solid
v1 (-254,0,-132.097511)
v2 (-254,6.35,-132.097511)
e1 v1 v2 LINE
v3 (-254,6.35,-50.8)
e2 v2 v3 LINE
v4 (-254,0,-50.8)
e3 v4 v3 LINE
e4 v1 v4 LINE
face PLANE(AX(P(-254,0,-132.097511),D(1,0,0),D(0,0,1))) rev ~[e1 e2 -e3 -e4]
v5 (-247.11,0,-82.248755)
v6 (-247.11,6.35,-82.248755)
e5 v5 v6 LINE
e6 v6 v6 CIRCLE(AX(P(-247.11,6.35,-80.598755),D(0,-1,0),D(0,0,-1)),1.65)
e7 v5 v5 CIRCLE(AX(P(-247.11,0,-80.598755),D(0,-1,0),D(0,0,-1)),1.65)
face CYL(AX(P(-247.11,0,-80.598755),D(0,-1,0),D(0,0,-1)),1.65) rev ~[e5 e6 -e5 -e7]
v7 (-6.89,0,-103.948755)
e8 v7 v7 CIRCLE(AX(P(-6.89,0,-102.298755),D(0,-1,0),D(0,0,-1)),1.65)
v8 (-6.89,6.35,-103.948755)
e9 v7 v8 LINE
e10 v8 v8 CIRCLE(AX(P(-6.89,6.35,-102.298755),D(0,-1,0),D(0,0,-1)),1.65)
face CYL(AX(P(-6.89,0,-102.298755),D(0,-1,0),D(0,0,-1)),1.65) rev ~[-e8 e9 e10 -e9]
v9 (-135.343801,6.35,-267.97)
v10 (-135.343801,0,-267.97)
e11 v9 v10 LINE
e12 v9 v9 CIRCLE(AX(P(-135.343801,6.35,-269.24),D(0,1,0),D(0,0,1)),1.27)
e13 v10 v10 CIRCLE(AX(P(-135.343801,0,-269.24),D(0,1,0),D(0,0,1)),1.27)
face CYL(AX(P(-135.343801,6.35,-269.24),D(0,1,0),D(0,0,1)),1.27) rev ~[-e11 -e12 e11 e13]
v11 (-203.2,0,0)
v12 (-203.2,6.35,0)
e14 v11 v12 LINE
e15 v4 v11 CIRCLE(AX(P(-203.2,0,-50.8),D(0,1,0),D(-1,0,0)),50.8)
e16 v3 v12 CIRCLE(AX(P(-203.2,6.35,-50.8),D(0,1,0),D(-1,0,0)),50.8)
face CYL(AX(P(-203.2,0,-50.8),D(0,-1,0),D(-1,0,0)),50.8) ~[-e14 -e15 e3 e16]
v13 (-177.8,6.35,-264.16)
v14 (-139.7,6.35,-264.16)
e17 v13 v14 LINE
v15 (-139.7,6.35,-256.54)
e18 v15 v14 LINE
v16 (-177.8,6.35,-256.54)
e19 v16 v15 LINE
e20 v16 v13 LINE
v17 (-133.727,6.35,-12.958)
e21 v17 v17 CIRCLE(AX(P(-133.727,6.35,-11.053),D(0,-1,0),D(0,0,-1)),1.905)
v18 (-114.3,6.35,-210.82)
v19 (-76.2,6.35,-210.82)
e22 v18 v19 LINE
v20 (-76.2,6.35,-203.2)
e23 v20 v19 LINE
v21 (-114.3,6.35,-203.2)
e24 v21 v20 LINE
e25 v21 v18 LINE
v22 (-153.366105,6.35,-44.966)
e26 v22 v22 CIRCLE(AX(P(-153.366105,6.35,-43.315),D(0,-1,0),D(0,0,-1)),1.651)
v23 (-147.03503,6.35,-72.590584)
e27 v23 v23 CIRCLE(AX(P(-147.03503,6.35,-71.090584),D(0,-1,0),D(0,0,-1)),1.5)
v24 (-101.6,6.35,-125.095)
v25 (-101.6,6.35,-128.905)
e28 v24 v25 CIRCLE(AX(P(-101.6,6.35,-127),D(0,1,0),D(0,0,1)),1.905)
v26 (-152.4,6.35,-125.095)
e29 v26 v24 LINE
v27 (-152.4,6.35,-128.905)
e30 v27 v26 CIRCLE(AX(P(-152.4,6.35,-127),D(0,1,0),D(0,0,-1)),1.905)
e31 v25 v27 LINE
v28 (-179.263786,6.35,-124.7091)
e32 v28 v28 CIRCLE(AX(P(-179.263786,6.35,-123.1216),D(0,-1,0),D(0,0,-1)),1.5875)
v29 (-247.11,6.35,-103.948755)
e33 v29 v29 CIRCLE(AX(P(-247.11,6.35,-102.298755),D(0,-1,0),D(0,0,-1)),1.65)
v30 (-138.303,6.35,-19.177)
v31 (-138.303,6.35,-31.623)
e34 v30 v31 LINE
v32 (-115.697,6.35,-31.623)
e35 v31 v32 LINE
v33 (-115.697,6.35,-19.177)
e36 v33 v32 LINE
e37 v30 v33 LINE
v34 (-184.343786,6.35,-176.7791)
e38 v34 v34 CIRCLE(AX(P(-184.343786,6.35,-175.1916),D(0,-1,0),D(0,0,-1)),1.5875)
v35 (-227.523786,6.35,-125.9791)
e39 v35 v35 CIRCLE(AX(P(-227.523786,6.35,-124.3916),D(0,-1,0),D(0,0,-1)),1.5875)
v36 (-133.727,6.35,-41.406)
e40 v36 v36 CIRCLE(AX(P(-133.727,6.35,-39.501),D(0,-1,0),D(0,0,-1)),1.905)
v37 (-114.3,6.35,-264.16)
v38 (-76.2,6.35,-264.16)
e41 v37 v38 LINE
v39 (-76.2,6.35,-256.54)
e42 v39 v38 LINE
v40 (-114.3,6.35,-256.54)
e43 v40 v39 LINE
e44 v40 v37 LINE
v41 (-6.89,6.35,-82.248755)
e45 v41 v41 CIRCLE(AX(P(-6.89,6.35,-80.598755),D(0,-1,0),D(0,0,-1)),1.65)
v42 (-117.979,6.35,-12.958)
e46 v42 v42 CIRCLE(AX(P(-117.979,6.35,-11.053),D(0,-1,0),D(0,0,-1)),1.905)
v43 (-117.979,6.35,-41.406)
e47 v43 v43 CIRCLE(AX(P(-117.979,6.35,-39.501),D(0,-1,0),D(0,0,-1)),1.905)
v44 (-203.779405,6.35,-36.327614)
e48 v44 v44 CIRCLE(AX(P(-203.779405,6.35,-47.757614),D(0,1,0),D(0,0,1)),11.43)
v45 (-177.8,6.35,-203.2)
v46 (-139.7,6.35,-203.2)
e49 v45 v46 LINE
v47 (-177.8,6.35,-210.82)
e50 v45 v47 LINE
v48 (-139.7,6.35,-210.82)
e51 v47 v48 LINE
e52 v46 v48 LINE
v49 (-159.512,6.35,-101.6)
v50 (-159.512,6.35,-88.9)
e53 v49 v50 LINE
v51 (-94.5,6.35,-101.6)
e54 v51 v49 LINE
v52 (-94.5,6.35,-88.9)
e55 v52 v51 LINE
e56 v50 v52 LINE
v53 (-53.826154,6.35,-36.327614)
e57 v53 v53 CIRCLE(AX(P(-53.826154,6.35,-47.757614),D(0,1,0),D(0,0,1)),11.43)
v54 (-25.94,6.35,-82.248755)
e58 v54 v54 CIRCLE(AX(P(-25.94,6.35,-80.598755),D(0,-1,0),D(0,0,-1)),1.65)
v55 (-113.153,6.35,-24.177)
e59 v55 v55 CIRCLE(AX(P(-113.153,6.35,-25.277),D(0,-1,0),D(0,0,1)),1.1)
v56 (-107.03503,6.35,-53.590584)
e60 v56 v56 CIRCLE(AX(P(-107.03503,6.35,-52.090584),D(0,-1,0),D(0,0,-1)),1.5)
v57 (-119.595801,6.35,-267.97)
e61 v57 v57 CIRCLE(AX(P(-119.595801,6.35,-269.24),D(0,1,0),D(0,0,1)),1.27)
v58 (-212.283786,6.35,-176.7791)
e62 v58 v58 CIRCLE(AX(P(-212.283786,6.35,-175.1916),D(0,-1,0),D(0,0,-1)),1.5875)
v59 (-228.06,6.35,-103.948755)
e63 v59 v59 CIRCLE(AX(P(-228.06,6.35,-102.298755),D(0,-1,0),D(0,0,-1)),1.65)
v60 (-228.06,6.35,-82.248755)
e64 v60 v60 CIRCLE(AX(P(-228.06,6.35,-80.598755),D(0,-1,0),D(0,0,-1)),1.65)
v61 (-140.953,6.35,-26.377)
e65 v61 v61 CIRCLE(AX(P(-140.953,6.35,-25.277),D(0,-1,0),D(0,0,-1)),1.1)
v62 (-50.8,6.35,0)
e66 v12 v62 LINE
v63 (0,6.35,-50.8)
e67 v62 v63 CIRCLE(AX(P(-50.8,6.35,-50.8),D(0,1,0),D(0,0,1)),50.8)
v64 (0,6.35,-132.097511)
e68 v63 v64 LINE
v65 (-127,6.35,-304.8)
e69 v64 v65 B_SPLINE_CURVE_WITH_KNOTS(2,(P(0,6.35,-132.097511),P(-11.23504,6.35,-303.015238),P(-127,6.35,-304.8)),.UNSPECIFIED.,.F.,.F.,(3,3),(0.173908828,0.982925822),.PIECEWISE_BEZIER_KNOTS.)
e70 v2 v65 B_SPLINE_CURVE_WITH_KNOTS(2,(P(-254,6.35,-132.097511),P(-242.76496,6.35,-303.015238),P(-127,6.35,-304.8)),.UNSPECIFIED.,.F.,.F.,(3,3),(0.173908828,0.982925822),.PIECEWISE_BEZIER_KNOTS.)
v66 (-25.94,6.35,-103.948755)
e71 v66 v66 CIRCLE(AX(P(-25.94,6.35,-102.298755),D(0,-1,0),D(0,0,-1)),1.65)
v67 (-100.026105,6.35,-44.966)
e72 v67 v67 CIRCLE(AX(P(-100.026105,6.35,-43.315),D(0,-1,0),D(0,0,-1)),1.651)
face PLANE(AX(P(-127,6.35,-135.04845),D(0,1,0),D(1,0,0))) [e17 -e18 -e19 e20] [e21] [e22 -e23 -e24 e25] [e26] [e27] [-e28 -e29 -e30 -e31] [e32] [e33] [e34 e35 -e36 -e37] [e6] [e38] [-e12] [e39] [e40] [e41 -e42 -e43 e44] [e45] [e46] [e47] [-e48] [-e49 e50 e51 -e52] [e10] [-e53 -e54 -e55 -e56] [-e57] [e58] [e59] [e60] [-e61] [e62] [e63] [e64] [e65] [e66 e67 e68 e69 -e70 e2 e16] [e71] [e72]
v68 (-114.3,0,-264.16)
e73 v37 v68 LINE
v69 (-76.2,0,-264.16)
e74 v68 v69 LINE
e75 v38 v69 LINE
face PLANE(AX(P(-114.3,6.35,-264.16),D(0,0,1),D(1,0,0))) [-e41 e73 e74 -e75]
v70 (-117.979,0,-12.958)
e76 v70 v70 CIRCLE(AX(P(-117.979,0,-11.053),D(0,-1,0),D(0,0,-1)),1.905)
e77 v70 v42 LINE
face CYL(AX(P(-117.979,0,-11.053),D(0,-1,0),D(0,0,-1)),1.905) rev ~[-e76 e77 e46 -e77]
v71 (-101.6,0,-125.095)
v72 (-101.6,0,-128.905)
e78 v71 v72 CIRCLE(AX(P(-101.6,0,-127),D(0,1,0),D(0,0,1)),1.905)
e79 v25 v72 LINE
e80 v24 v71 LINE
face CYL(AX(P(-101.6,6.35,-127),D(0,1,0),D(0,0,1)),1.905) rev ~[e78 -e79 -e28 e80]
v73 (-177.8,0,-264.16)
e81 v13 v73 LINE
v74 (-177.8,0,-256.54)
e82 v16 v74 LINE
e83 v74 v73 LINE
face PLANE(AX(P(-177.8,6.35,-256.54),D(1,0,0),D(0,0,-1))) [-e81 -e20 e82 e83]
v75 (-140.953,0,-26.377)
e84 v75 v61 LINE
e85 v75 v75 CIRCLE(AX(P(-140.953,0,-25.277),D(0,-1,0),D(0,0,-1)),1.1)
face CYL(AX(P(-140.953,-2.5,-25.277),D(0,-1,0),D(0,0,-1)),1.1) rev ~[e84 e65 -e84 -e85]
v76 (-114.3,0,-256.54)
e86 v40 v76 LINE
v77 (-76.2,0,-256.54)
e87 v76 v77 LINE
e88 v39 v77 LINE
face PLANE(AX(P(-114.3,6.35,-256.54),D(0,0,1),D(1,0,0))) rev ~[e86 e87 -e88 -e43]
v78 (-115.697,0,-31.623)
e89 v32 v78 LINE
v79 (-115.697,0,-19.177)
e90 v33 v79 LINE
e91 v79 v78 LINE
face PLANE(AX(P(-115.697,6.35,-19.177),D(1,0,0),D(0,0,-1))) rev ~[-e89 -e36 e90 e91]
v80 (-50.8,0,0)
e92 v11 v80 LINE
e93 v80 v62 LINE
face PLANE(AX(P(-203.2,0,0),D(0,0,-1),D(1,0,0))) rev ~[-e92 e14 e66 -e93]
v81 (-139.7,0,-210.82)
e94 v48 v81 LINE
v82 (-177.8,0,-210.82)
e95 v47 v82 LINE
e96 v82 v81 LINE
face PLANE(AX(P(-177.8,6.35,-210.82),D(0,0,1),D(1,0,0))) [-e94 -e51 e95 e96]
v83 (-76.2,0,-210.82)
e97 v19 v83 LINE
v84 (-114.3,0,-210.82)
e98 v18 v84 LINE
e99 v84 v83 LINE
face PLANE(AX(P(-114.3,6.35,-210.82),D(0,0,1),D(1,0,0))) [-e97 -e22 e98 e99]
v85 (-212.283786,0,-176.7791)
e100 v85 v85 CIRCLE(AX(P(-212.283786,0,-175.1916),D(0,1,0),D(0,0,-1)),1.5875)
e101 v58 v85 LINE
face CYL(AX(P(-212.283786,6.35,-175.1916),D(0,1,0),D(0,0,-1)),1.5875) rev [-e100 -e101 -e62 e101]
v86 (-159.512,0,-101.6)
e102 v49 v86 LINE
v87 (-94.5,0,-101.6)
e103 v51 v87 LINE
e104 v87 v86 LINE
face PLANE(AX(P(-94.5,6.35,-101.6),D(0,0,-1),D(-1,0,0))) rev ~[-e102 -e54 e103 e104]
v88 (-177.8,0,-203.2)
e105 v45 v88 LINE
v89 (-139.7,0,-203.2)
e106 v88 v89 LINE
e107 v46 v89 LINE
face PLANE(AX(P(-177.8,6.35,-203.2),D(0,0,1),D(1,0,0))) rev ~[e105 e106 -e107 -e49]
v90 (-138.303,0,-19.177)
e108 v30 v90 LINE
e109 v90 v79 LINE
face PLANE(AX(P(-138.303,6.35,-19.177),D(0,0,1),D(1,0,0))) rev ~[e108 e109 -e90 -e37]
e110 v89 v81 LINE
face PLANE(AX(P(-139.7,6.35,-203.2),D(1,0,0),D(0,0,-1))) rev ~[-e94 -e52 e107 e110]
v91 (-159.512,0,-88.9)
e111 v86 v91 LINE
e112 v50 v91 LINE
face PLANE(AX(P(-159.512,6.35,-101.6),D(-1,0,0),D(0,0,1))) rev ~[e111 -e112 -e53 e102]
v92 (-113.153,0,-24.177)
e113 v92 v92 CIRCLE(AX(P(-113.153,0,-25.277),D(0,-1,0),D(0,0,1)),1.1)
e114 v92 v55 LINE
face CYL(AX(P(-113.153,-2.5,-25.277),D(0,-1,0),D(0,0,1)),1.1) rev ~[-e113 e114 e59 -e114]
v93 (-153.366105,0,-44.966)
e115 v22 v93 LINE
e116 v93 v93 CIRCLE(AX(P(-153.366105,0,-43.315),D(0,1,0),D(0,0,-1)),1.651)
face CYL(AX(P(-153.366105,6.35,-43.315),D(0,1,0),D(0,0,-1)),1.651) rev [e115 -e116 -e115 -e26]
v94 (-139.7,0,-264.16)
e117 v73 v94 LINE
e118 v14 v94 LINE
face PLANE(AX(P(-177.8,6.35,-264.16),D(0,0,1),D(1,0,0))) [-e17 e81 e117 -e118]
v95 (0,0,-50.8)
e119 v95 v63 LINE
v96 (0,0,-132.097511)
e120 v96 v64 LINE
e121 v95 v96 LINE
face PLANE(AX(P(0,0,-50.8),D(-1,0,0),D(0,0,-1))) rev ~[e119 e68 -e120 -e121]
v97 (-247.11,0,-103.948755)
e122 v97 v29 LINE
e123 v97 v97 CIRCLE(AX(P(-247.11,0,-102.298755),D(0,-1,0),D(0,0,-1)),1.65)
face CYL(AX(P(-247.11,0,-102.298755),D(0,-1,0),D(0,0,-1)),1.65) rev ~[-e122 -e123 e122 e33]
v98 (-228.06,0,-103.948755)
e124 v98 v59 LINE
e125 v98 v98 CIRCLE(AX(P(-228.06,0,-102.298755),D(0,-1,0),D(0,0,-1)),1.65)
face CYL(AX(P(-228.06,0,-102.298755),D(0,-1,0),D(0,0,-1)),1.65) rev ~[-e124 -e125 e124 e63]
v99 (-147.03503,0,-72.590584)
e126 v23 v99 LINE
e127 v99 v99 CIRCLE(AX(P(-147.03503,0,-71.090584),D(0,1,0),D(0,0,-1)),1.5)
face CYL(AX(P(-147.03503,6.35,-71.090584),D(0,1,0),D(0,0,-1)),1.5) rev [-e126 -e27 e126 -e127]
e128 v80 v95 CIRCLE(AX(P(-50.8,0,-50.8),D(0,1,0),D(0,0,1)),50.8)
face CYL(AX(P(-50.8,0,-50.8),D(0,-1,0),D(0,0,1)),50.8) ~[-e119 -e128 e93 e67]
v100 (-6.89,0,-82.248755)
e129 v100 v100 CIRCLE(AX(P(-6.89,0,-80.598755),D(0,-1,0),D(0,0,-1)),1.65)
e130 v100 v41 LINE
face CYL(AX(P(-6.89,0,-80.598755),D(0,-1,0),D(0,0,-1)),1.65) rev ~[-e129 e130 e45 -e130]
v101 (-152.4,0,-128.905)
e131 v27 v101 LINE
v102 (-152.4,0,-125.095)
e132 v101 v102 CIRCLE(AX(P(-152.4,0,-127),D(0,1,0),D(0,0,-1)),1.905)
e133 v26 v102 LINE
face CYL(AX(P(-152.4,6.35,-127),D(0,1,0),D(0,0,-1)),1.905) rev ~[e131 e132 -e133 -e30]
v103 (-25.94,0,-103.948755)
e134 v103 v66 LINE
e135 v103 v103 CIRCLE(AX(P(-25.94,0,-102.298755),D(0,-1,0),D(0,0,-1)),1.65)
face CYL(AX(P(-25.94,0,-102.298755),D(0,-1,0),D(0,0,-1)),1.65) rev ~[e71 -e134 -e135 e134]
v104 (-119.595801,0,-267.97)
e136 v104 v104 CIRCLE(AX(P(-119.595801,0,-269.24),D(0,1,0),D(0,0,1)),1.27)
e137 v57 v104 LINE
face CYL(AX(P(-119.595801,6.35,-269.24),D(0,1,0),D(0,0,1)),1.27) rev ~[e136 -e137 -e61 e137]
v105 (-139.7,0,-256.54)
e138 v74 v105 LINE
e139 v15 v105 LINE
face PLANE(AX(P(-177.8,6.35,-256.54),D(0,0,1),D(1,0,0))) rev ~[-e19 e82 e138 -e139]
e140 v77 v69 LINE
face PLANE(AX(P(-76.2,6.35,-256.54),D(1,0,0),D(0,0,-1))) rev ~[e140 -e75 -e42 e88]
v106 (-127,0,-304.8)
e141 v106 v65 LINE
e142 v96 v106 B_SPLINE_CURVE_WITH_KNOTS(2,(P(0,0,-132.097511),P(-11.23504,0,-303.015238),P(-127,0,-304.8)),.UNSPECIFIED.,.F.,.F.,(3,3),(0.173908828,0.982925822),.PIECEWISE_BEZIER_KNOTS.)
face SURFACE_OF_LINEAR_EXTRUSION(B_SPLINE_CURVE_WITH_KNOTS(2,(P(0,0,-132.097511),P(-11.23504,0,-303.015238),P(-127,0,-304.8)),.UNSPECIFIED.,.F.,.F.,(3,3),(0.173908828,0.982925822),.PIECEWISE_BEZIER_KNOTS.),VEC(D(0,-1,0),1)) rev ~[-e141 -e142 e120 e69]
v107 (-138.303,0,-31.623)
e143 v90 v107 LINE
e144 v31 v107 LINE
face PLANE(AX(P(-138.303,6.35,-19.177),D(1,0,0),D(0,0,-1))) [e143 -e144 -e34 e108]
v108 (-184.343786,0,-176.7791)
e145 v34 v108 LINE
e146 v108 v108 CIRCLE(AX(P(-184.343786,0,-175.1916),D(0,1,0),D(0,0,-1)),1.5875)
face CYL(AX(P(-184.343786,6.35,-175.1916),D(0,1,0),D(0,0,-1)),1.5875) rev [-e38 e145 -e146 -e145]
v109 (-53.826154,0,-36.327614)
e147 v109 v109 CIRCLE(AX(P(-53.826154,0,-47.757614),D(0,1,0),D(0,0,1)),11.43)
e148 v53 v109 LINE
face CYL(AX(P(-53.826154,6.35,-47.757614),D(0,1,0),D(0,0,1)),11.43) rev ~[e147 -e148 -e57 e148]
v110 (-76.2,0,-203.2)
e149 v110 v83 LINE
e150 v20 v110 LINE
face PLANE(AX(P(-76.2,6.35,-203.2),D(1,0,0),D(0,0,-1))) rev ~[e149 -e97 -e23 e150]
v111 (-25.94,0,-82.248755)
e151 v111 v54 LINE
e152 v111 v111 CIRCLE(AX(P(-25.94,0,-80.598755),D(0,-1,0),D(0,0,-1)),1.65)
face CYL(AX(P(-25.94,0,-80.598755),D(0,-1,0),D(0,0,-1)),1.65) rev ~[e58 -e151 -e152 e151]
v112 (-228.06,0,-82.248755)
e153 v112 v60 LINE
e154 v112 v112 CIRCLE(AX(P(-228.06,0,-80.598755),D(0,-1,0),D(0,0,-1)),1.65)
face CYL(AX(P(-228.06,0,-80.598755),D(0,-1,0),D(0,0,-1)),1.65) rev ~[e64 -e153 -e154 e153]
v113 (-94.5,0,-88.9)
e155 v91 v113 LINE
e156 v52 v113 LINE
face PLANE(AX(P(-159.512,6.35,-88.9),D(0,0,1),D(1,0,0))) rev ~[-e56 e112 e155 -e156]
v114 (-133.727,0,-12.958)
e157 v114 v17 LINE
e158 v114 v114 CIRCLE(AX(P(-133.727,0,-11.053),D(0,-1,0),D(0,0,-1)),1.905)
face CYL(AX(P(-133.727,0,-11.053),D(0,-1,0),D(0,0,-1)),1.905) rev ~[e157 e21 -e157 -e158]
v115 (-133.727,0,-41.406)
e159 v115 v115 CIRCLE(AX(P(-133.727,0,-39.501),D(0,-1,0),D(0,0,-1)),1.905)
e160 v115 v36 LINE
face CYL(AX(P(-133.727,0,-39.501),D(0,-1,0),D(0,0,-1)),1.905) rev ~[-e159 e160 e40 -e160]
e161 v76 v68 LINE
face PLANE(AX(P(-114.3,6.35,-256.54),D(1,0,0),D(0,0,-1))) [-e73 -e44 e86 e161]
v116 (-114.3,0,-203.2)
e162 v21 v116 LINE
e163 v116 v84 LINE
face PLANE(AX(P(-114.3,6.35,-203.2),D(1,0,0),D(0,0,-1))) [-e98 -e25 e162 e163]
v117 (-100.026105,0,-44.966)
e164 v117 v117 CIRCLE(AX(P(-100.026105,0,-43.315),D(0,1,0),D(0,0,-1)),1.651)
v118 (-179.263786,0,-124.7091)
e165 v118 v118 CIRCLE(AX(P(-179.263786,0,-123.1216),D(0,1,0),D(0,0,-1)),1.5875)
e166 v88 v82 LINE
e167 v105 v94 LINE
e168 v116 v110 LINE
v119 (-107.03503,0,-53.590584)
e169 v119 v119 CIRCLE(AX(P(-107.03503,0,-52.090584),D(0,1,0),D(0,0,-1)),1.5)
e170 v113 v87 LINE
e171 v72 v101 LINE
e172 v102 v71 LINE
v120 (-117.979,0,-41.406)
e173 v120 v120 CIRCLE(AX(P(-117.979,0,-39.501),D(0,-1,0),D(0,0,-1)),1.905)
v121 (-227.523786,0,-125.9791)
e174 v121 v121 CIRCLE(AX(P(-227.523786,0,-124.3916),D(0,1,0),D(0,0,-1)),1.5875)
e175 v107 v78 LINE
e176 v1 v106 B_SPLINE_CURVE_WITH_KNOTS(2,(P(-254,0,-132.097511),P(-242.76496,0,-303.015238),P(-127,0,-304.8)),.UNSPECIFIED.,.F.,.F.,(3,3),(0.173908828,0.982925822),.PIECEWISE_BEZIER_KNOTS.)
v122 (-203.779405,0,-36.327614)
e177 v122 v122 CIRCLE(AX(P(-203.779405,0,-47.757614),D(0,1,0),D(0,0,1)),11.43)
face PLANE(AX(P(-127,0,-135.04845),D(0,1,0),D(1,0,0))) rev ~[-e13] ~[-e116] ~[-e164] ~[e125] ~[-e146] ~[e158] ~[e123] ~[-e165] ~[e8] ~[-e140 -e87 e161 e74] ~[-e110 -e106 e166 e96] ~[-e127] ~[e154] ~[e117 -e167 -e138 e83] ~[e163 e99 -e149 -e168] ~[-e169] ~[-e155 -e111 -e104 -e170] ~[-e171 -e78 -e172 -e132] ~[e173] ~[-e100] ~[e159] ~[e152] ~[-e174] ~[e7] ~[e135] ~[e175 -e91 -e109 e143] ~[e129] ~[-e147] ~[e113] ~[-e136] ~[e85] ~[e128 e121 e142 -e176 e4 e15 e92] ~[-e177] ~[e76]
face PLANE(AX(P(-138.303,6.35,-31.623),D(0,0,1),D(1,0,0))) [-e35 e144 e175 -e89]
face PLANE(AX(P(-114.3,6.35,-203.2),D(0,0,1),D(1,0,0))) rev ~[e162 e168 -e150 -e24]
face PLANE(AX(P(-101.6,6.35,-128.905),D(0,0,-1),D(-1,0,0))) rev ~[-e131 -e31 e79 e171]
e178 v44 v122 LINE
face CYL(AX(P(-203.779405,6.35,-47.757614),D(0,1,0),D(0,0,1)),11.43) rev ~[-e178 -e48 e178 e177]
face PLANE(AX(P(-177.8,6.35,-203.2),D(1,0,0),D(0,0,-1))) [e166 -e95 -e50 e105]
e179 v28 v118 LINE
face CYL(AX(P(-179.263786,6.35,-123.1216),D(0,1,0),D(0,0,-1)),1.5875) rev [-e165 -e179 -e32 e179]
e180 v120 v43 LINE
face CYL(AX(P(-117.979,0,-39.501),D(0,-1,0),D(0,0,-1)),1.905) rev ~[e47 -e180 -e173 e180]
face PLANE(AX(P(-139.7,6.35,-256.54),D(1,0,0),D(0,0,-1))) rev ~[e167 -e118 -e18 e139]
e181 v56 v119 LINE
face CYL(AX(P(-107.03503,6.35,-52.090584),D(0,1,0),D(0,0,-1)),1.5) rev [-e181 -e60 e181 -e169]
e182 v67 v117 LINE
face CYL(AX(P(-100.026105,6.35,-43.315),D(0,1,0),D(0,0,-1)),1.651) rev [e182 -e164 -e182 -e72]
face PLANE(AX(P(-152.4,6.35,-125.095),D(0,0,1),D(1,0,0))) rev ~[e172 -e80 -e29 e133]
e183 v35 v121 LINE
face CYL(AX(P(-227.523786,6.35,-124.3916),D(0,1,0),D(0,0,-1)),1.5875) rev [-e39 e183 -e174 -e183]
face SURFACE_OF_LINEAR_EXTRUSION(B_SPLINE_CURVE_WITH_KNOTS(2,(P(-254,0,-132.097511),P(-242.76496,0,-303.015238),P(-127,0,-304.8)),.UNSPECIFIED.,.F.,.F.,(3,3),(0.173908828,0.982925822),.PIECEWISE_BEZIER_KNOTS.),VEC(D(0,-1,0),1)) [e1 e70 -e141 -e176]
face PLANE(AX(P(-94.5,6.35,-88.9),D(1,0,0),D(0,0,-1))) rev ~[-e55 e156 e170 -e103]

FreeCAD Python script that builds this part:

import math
import FreeCAD as App
import Part
import Sketcher

V = App.Vector
Q = App.Units.Quantity

doc = App.newDocument("Part")
body = doc.addObject("PartDesign::Body", "Body")

# Sketch on XZ plane
sketch1 = doc.addObject("Sketcher::SketchObject", "Sketch")
body.addObject(sketch1)
sketch1.AttachmentSupport = (doc.XZ_Plane, [""])
sketch1.MapMode = "FlatFace"
sketch1.addGeometry(Part.LineSegment(V(-203.2, 0, 0), V(-50.8, 0, 0)), False)
sketch1.addGeometry(Part.ArcOfCircle(Part.Circle(V(-50.8, -50.8, 0), V(0, 0, 1), 50.8), math.radians(0), math.radians(90)), False)
sketch1.addGeometry(Part.LineSegment(V(0, -50.8, 0), V(0, -132.097511, 0)), False)
sketch1.addGeometry(Part.BSplineCurve([V(0, -132.097511, 0), V(-11.23504, -303.015238, 0), V(-127, -304.8, 0)], [3, 3], [0.173908828, 0.982925822], False, 2, [1, 1, 1], False), False)
sketch1.addGeometry(Part.BSplineCurve([V(-254, -132.097511, 0), V(-242.76496, -303.015238, 0), V(-127, -304.8, 0)], [3, 3], [0.173908828, 0.982925822], False, 2, [1, 1, 1], False), False)
sketch1.addGeometry(Part.LineSegment(V(-254, -132.097511, 0), V(-254, -50.8, 0)), False)
sketch1.addGeometry(Part.ArcOfCircle(Part.Circle(V(-203.2, -50.8, 0), V(0, 0, 1), 50.8), math.radians(90), math.radians(180)), False)
sketch1.addConstraint(Sketcher.Constraint("Block", 3))
sketch1.addConstraint(Sketcher.Constraint("Block", 4))
sketch1.addConstraint(Sketcher.Constraint("Tangent", 0, 2, 1, 2))
sketch1.addConstraint(Sketcher.Constraint("Tangent", 1, 1, 2, 1))
sketch1.addConstraint(Sketcher.Constraint("Coincident", 2, 2, 3, 1))
sketch1.addConstraint(Sketcher.Constraint("Coincident", 4, 1, 5, 1))
sketch1.addConstraint(Sketcher.Constraint("Tangent", 5, 2, 6, 2))
sketch1.addConstraint(Sketcher.Constraint("Tangent", 6, 1, 0, 1))
sketch1.addConstraint(Sketcher.Constraint("Horizontal", 0))
sketch1.addConstraint(Sketcher.Constraint("Vertical", 2))
sketch1.addConstraint(Sketcher.Constraint("Vertical", 5))
sketch1.addConstraint(Sketcher.Constraint("Equal", 1, 6))
sketch1.addConstraint(Sketcher.Constraint("PointOnObject", 0, 2, -1))
sketch1.addConstraint(Sketcher.Constraint("Radius", 1, Q("2 in")))
pad1 = doc.addObject("PartDesign::Pad", "Pad")
body.addObject(pad1)
pad1.Profile = sketch1
pad1.Length = Q("0.25 in")
pad1.Reversed = True

# Sketch on XZ plane
sketch2 = doc.addObject("Sketcher::SketchObject", "Sketch001")
body.addObject(sketch2)
sketch2.AttachmentSupport = (doc.XZ_Plane, [""])
sketch2.MapMode = "FlatFace"
sketch2.AttachmentOffset = App.Placement(V(0, 0, -0.25 * 25.4), App.Rotation())
sketch2.addGeometry(Part.Circle(V(-135.3, -269.2, 0), V(0, 0, 1), 1.3), False)
sketch2.addConstraint(Sketcher.Constraint("Diameter", 0, Q("0.1 in")))
sketch2.addConstraint(Sketcher.Constraint("DistanceY", 0, 3, -1, 1, Q("10.6 in")))
sketch2.addConstraint(Sketcher.Constraint("DistanceX", 0, 3, -1, 1, Q("135.343801 mm")))
pocket1 = doc.addObject("PartDesign::Pocket", "Pocket")
body.addObject(pocket1)
pocket1.Profile = sketch2
pocket1.Type = "ThroughAll"
pocket1.Reversed = True

# Sketch on XZ plane
sketch3 = doc.addObject("Sketcher::SketchObject", "Sketch002")
body.addObject(sketch3)
sketch3.AttachmentSupport = (doc.XZ_Plane, [""])
sketch3.MapMode = "FlatFace"
sketch3.AttachmentOffset = App.Placement(V(0, 0, -0.25 * 25.4), App.Rotation())
sketch3.addGeometry(Part.Circle(V(-119.6, -269.2, 0), V(0, 0, 1), 1.3), False)
sketch3.addConstraint(Sketcher.Constraint("Diameter", 0, Q("0.1 in")))
sketch3.addConstraint(Sketcher.Constraint("DistanceY", 0, 3, -1, 1, Q("10.6 in")))
sketch3.addConstraint(Sketcher.Constraint("DistanceX", 0, 3, -1, 1, Q("119.595801 mm")))
pocket2 = doc.addObject("PartDesign::Pocket", "Pocket001")
body.addObject(pocket2)
pocket2.Profile = sketch3
pocket2.Type = "ThroughAll"
pocket2.Reversed = True

# Sketch on XZ plane
sketch4 = doc.addObject("Sketcher::SketchObject", "Sketch003")
body.addObject(sketch4)
sketch4.AttachmentSupport = (doc.XZ_Plane, [""])
sketch4.MapMode = "FlatFace"
sketch4.AttachmentOffset = App.Placement(V(0, 0, -0.25 * 25.4), App.Rotation())
sketch4.addGeometry(Part.LineSegment(V(-178, -211, 0), V(-178, -203, 0)), False)
sketch4.addGeometry(Part.LineSegment(V(-178, -203, 0), V(-140, -203, 0)), False)
sketch4.addGeometry(Part.LineSegment(V(-140, -203, 0), V(-140, -211, 0)), False)
sketch4.addGeometry(Part.LineSegment(V(-140, -211, 0), V(-178, -211, 0)), False)
sketch4.addGeometry(Part.LineSegment(V(-178, -264, 0), V(-178, -257, 0)), False)
sketch4.addGeometry(Part.LineSegment(V(-178, -257, 0), V(-140, -257, 0)), False)
sketch4.addGeometry(Part.LineSegment(V(-140, -257, 0), V(-140, -264, 0)), False)
sketch4.addGeometry(Part.LineSegment(V(-140, -264, 0), V(-178, -264, 0)), False)
sketch4.addGeometry(Part.LineSegment(V(-114, -211, 0), V(-114, -203, 0)), False)
sketch4.addGeometry(Part.LineSegment(V(-114, -203, 0), V(-76, -203, 0)), False)
sketch4.addGeometry(Part.LineSegment(V(-76, -203, 0), V(-76, -211, 0)), False)
sketch4.addGeometry(Part.LineSegment(V(-76, -211, 0), V(-114, -211, 0)), False)
sketch4.addGeometry(Part.LineSegment(V(-114, -264, 0), V(-114, -257, 0)), False)
sketch4.addGeometry(Part.LineSegment(V(-114, -257, 0), V(-76, -257, 0)), False)
sketch4.addGeometry(Part.LineSegment(V(-76, -257, 0), V(-76, -264, 0)), False)
sketch4.addGeometry(Part.LineSegment(V(-76, -264, 0), V(-114, -264, 0)), False)
sketch4.addConstraint(Sketcher.Constraint("Coincident", 0, 2, 1, 1))
sketch4.addConstraint(Sketcher.Constraint("Coincident", 1, 2, 2, 1))
sketch4.addConstraint(Sketcher.Constraint("Coincident", 2, 2, 3, 1))
sketch4.addConstraint(Sketcher.Constraint("Coincident", 3, 2, 0, 1))
sketch4.addConstraint(Sketcher.Constraint("Coincident", 4, 2, 5, 1))
sketch4.addConstraint(Sketcher.Constraint("Coincident", 5, 2, 6, 1))
sketch4.addConstraint(Sketcher.Constraint("Coincident", 6, 2, 7, 1))
sketch4.addConstraint(Sketcher.Constraint("Coincident", 7, 2, 4, 1))
sketch4.addConstraint(Sketcher.Constraint("Coincident", 8, 2, 9, 1))
sketch4.addConstraint(Sketcher.Constraint("Coincident", 9, 2, 10, 1))
sketch4.addConstraint(Sketcher.Constraint("Coincident", 10, 2, 11, 1))
sketch4.addConstraint(Sketcher.Constraint("Coincident", 11, 2, 8, 1))
sketch4.addConstraint(Sketcher.Constraint("Coincident", 12, 2, 13, 1))
sketch4.addConstraint(Sketcher.Constraint("Coincident", 13, 2, 14, 1))
sketch4.addConstraint(Sketcher.Constraint("Coincident", 14, 2, 15, 1))
sketch4.addConstraint(Sketcher.Constraint("Coincident", 15, 2, 12, 1))
sketch4.addConstraint(Sketcher.Constraint("Vertical", 0))
sketch4.addConstraint(Sketcher.Constraint("Horizontal", 1))
sketch4.addConstraint(Sketcher.Constraint("Vertical", 2))
sketch4.addConstraint(Sketcher.Constraint("Horizontal", 3))
sketch4.addConstraint(Sketcher.Constraint("Vertical", 4))
sketch4.addConstraint(Sketcher.Constraint("Horizontal", 5))
sketch4.addConstraint(Sketcher.Constraint("Vertical", 6))
sketch4.addConstraint(Sketcher.Constraint("Horizontal", 7))
sketch4.addConstraint(Sketcher.Constraint("Vertical", 8))
sketch4.addConstraint(Sketcher.Constraint("Horizontal", 9))
sketch4.addConstraint(Sketcher.Constraint("Vertical", 10))
sketch4.addConstraint(Sketcher.Constraint("Horizontal", 11))
sketch4.addConstraint(Sketcher.Constraint("Vertical", 12))
sketch4.addConstraint(Sketcher.Constraint("Horizontal", 13))
sketch4.addConstraint(Sketcher.Constraint("Vertical", 14))
sketch4.addConstraint(Sketcher.Constraint("Horizontal", 15))
sketch4.addConstraint(Sketcher.Constraint("Horizontal", 1, 2, 8, 2))
sketch4.addConstraint(Sketcher.Constraint("Horizontal", 3, 2, 10, 2))
sketch4.addConstraint(Sketcher.Constraint("Horizontal", 5, 2, 12, 2))
sketch4.addConstraint(Sketcher.Constraint("Horizontal", 7, 2, 14, 2))
sketch4.addConstraint(Sketcher.Constraint("Vertical", 3, 2, 4, 2))
sketch4.addConstraint(Sketcher.Constraint("Vertical", 2, 2, 5, 2))
sketch4.addConstraint(Sketcher.Constraint("Vertical", 11, 2, 12, 2))
sketch4.addConstraint(Sketcher.Constraint("Vertical", 10, 2, 13, 2))
sketch4.addConstraint(Sketcher.Constraint("Equal", 7, 9))
sketch4.addConstraint(Sketcher.Constraint("Equal", 2, 4))
sketch4.addConstraint(Sketcher.Constraint("DistanceX", 1, 1, 1, 2, Q("1.5 in")))
sketch4.addConstraint(Sketcher.Constraint("DistanceY", 0, 1, 0, 2, Q("0.3 in")))
sketch4.addConstraint(Sketcher.Constraint("DistanceX", 0, 2, -1, 1, Q("7 in")))
sketch4.addConstraint(Sketcher.Constraint("DistanceY", 0, 2, -1, 1, Q("8 in")))
sketch4.addConstraint(Sketcher.Constraint("DistanceX", 9, 2, -1, 1, Q("3 in")))
sketch4.addConstraint(Sketcher.Constraint("DistanceY", 4, 2, -1, 1, Q("10.1 in")))
pocket3 = doc.addObject("PartDesign::Pocket", "Pocket002")
body.addObject(pocket3)
pocket3.Profile = sketch4
pocket3.Type = "ThroughAll"
pocket3.Reversed = True

# Sketch on XZ plane
sketch5 = doc.addObject("Sketcher::SketchObject", "Sketch004")
body.addObject(sketch5)
sketch5.AttachmentSupport = (doc.XZ_Plane, [""])
sketch5.MapMode = "FlatFace"
sketch5.AttachmentOffset = App.Placement(V(0, 0, -0.25 * 25.4), App.Rotation())
sketch5.addGeometry(Part.LineSegment(V(-152.4, -125.1, 0), V(-101.6, -125.1, 0)), False)
sketch5.addGeometry(Part.ArcOfCircle(Part.Circle(V(-101.6, -127, 0), V(0, 0, 1), 1.9), math.radians(-90), math.radians(90)), False)
sketch5.addGeometry(Part.LineSegment(V(-101.6, -128.9, 0), V(-152.4, -128.9, 0)), False)
sketch5.addGeometry(Part.ArcOfCircle(Part.Circle(V(-152.4, -127, 0), V(0, 0, 1), 1.9), math.radians(90), math.radians(270)), False)
sketch5.addGeometry(Part.LineSegment(V(-159.5, -101.6, 0), V(-159.5, -88.9, 0)), False)
sketch5.addGeometry(Part.LineSegment(V(-159.5, -88.9, 0), V(-94.5, -88.9, 0)), False)
sketch5.addGeometry(Part.LineSegment(V(-94.5, -88.9, 0), V(-94.5, -101.6, 0)), False)
sketch5.addGeometry(Part.LineSegment(V(-94.5, -101.6, 0), V(-159.5, -101.6, 0)), False)
sketch5.addConstraint(Sketcher.Constraint("Tangent", 0, 2, 1, 2))
sketch5.addConstraint(Sketcher.Constraint("Tangent", 1, 1, 2, 1))
sketch5.addConstraint(Sketcher.Constraint("Tangent", 2, 2, 3, 2))
sketch5.addConstraint(Sketcher.Constraint("Tangent", 3, 1, 0, 1))
sketch5.addConstraint(Sketcher.Constraint("Coincident", 4, 2, 5, 1))
sketch5.addConstraint(Sketcher.Constraint("Coincident", 5, 2, 6, 1))
sketch5.addConstraint(Sketcher.Constraint("Coincident", 6, 2, 7, 1))
sketch5.addConstraint(Sketcher.Constraint("Coincident", 7, 2, 4, 1))
sketch5.addConstraint(Sketcher.Constraint("Horizontal", 0))
sketch5.addConstraint(Sketcher.Constraint("Horizontal", 2))
sketch5.addConstraint(Sketcher.Constraint("Vertical", 4))
sketch5.addConstraint(Sketcher.Constraint("Horizontal", 5))
sketch5.addConstraint(Sketcher.Constraint("Vertical", 6))
sketch5.addConstraint(Sketcher.Constraint("Horizontal", 7))
sketch5.addConstraint(Sketcher.Constraint("DistanceX", 0, 1, 0, 2, Q("2 in")))
sketch5.addConstraint(Sketcher.Constraint("DistanceY", 4, 1, 4, 2, Q("0.5 in")))
sketch5.addConstraint(Sketcher.Constraint("DistanceX", 1, 3, -1, 1, Q("4 in")))
sketch5.addConstraint(Sketcher.Constraint("DistanceY", 1, 3, -1, 1, Q("5 in")))
sketch5.addConstraint(Sketcher.Constraint("DistanceY", 6, 2, -1, 1, Q("4 in")))
sketch5.addConstraint(Sketcher.Constraint("Radius", 1, Q("0.075 in")))
sketch5.addConstraint(Sketcher.Constraint("DistanceX", 4, 2, -1, 1, Q("6.28 in")))
sketch5.addConstraint(Sketcher.Constraint("DistanceX", 5, 1, 5, 2, Q("65.012 mm")))
pocket4 = doc.addObject("PartDesign::Pocket", "Pocket003")
body.addObject(pocket4)
pocket4.Profile = sketch5
pocket4.Type = "ThroughAll"
pocket4.Reversed = True

# Sketch on XZ plane
sketch6 = doc.addObject("Sketcher::SketchObject", "Sketch005")
body.addObject(sketch6)
sketch6.AttachmentSupport = (doc.XZ_Plane, [""])
sketch6.MapMode = "FlatFace"
sketch6.AttachmentOffset = App.Placement(V(0, 0, -0.25 * 25.4), App.Rotation())
sketch6.addGeometry(Part.LineSegment(V(-138, -32, 0), V(-138, -19, 0)), False)
sketch6.addGeometry(Part.LineSegment(V(-138, -19, 0), V(-116, -19, 0)), False)
sketch6.addGeometry(Part.LineSegment(V(-116, -19, 0), V(-116, -32, 0)), False)
sketch6.addGeometry(Part.LineSegment(V(-116, -32, 0), V(-138, -32, 0)), False)
sketch6.addConstraint(Sketcher.Constraint("Coincident", 0, 2, 1, 1))
sketch6.addConstraint(Sketcher.Constraint("Coincident", 1, 2, 2, 1))
sketch6.addConstraint(Sketcher.Constraint("Coincident", 2, 2, 3, 1))
sketch6.addConstraint(Sketcher.Constraint("Coincident", 3, 2, 0, 1))
sketch6.addConstraint(Sketcher.Constraint("Vertical", 0))
sketch6.addConstraint(Sketcher.Constraint("Horizontal", 1))
sketch6.addConstraint(Sketcher.Constraint("Vertical", 2))
sketch6.addConstraint(Sketcher.Constraint("Horizontal", 3))
sketch6.addConstraint(Sketcher.Constraint("DistanceX", 1, 1, 1, 2, Q("0.89 in")))
sketch6.addConstraint(Sketcher.Constraint("DistanceY", 0, 1, 0, 2, Q("0.49 in")))
sketch6.addConstraint(Sketcher.Constraint("DistanceX", 0, 2, -1, 1, Q("5.445 in")))
sketch6.addConstraint(Sketcher.Constraint("DistanceY", 0, 2, -1, 1, Q("0.755 in")))
pocket5 = doc.addObject("PartDesign::Pocket", "Pocket004")
body.addObject(pocket5)
pocket5.Profile = sketch6
pocket5.Type = "ThroughAll"
pocket5.Reversed = True

# Sketch on XZ plane
sketch7 = doc.addObject("Sketcher::SketchObject", "Sketch006")
body.addObject(sketch7)
sketch7.AttachmentSupport = (doc.XZ_Plane, [""])
sketch7.MapMode = "FlatFace"
sketch7.AttachmentOffset = App.Placement(V(0, 0, 2.5), App.Rotation())
sketch7.addGeometry(Part.Circle(V(-141, -25.3, 0), V(0, 0, 1), 1.1), False)
sketch7.addGeometry(Part.Circle(V(-113.2, -25.3, 0), V(0, 0, 1), 1.1), False)
sketch7.addConstraint(Sketcher.Constraint("Equal", 0, 1))
sketch7.addConstraint(Sketcher.Constraint("Horizontal", 0, 3, 1, 3))
sketch7.addConstraint(Sketcher.Constraint("Diameter", 0, Q("2.2 mm")))
sketch7.addConstraint(Sketcher.Constraint("DistanceX", 0, 3, -1, 1, Q("140.953 mm")))
sketch7.addConstraint(Sketcher.Constraint("DistanceY", 0, 3, -1, 1, Q("25.277 mm")))
sketch7.addConstraint(Sketcher.Constraint("DistanceX", 1, 3, -1, 1, Q("113.153 mm")))
pocket6 = doc.addObject("PartDesign::Pocket", "Pocket005")
body.addObject(pocket6)
pocket6.Profile = sketch7
pocket6.Type = "ThroughAll"

# Sketch on XZ plane
sketch8 = doc.addObject("Sketcher::SketchObject", "Sketch007")
body.addObject(sketch8)
sketch8.AttachmentSupport = (doc.XZ_Plane, [""])
sketch8.MapMode = "FlatFace"
sketch8.AttachmentOffset = App.Placement(V(0, 0, -0.25 * 25.4), App.Rotation())
sketch8.addGeometry(Part.Circle(V(-179.3, -123.1, 0), V(0, 0, 1), 1.6), False)
sketch8.addGeometry(Part.Circle(V(-227.5, -124.4, 0), V(0, 0, 1), 1.6), False)
sketch8.addGeometry(Part.Circle(V(-212.3, -175.2, 0), V(0, 0, 1), 1.6), False)
sketch8.addGeometry(Part.Circle(V(-184.3, -175.2, 0), V(0, 0, 1), 1.6), False)
sketch8.addGeometry(Part.Circle(V(-107, -52.1, 0), V(0, 0, 1), 1.5), False)
sketch8.addGeometry(Part.Circle(V(-147, -71.1, 0), V(0, 0, 1), 1.5), False)
sketch8.addGeometry(Part.Circle(V(-153.4, -43.3, 0), V(0, 0, 1), 1.7), False)
sketch8.addGeometry(Part.Circle(V(-100, -43.3, 0), V(0, 0, 1), 1.7), False)
sketch8.addConstraint(Sketcher.Constraint("Equal", 0, 1))
sketch8.addConstraint(Sketcher.Constraint("Equal", 1, 2))
sketch8.addConstraint(Sketcher.Constraint("Equal", 2, 3))
sketch8.addConstraint(Sketcher.Constraint("Equal", 4, 5))
sketch8.addConstraint(Sketcher.Constraint("Equal", 6, 7))
sketch8.addConstraint(Sketcher.Constraint("Horizontal", 2, 3, 3, 3))
sketch8.addConstraint(Sketcher.Constraint("Horizontal", 6, 3, 7, 3))
sketch8.addConstraint(Sketcher.Constraint("Diameter", 6, Q("0.13 in")))
sketch8.addConstraint(Sketcher.Constraint("Diameter", 0, Q("0.125 in")))
sketch8.addConstraint(Sketcher.Constraint("DistanceY", 2, 3, 1, 3, Q("2 in")))
sketch8.addConstraint(Sketcher.Constraint("DistanceX", 1, 3, 0, 3, Q("1.9 in")))
sketch8.addConstraint(Sketcher.Constraint("DistanceX", 1, 3, 2, 3, Q("0.6 in")))
sketch8.addConstraint(Sketcher.Constraint("DistanceX", 2, 3, 3, 3, Q("1.1 in")))
sketch8.addConstraint(Sketcher.Constraint("DistanceX", 6, 3, 7, 3, Q("2.1 in")))
sketch8.addConstraint(Sketcher.Constraint("Diameter", 4, Q("3 mm")))
sketch8.addConstraint(Sketcher.Constraint("DistanceY", 1, 3, 0, 3, Q("0.05 in")))
sketch8.addConstraint(Sketcher.Constraint("DistanceY", 0, 3, -1, 1, Q("123.1216 mm")))
sketch8.addConstraint(Sketcher.Constraint("DistanceY", 6, 3, -1, 1, Q("43.315 mm")))
sketch8.addConstraint(Sketcher.Constraint("DistanceX", 5, 3, 4, 3, Q("40 mm")))
sketch8.addConstraint(Sketcher.Constraint("DistanceY", 5, 3, 4, 3, Q("19 mm")))
sketch8.addConstraint(Sketcher.Constraint("DistanceX", 4, 3, -1, 1, Q("107.03503 mm")))
sketch8.addConstraint(Sketcher.Constraint("DistanceX", 0, 3, 6, 3, Q("25.897681 mm")))
sketch8.addConstraint(Sketcher.Constraint("DistanceX", 0, 3, -1, 1, Q("179.263786 mm")))
sketch8.addConstraint(Sketcher.Constraint("DistanceY", 4, 3, -1, 1, Q("52.090584 mm")))
pocket7 = doc.addObject("PartDesign::Pocket", "Pocket006")
body.addObject(pocket7)
pocket7.Profile = sketch8
pocket7.Type = "ThroughAll"
pocket7.Reversed = True

# Sketch on XZ plane
sketch9 = doc.addObject("Sketcher::SketchObject", "Sketch008")
body.addObject(sketch9)
sketch9.AttachmentSupport = (doc.XZ_Plane, [""])
sketch9.MapMode = "FlatFace"
sketch9.addGeometry(Part.Circle(V(-247.1, -80.6, 0), V(0, 0, 1), 1.6), False)
sketch9.addGeometry(Part.Circle(V(-228.1, -80.6, 0), V(0, 0, 1), 1.6), False)
sketch9.addGeometry(Part.Circle(V(-247.1, -102.3, 0), V(0, 0, 1), 1.6), False)
sketch9.addGeometry(Part.Circle(V(-228.1, -102.3, 0), V(0, 0, 1), 1.6), False)
sketch9.addGeometry(Part.Circle(V(-6.9, -102.3, 0), V(0, 0, 1), 1.6), False)
sketch9.addGeometry(Part.Circle(V(-25.9, -102.3, 0), V(0, 0, 1), 1.6), False)
sketch9.addGeometry(Part.Circle(V(-25.9, -80.6, 0), V(0, 0, 1), 1.6), False)
sketch9.addGeometry(Part.Circle(V(-6.9, -80.6, 0), V(0, 0, 1), 1.6), False)
sketch9.addConstraint(Sketcher.Constraint("Equal", 0, 1))
sketch9.addConstraint(Sketcher.Constraint("Equal", 1, 2))
sketch9.addConstraint(Sketcher.Constraint("Equal", 2, 3))
sketch9.addConstraint(Sketcher.Constraint("Equal", 3, 4))
sketch9.addConstraint(Sketcher.Constraint("Equal", 4, 5))
sketch9.addConstraint(Sketcher.Constraint("Equal", 5, 6))
sketch9.addConstraint(Sketcher.Constraint("Equal", 6, 7))
sketch9.addConstraint(Sketcher.Constraint("Horizontal", 0, 3, 1, 3))
sketch9.addConstraint(Sketcher.Constraint("Horizontal", 2, 3, 3, 3))
sketch9.addConstraint(Sketcher.Constraint("Horizontal", 3, 3, 4, 3))
sketch9.addConstraint(Sketcher.Constraint("Horizontal", 4, 3, 5, 3))
sketch9.addConstraint(Sketcher.Constraint("Horizontal", 1, 3, 6, 3))
sketch9.addConstraint(Sketcher.Constraint("Horizontal", 6, 3, 7, 3))
sketch9.addConstraint(Sketcher.Constraint("Vertical", 0, 3, 2, 3))
sketch9.addConstraint(Sketcher.Constraint("Vertical", 1, 3, 3, 3))
sketch9.addConstraint(Sketcher.Constraint("Vertical", 5, 3, 6, 3))
sketch9.addConstraint(Sketcher.Constraint("Vertical", 4, 3, 7, 3))
sketch9.addConstraint(Sketcher.Constraint("Diameter", 0, Q("3.3 mm")))
sketch9.addConstraint(Sketcher.Constraint("DistanceX", 0, 3, 1, 3, Q("0.75 in")))
sketch9.addConstraint(Sketcher.Constraint("DistanceX", 5, 3, 4, 3, Q("0.75 in")))
sketch9.addConstraint(Sketcher.Constraint("DistanceX", 0, 3, -1, 1, Q("247.11 mm")))
sketch9.addConstraint(Sketcher.Constraint("DistanceX", 4, 3, -1, 1, Q("6.89 mm")))
sketch9.addConstraint(Sketcher.Constraint("DistanceY", 2, 3, 0, 3, Q("21.7 mm")))
sketch9.addConstraint(Sketcher.Constraint("DistanceY", 0, 3, -1, 1, Q("80.598755 mm")))
pocket8 = doc.addObject("PartDesign::Pocket", "Pocket007")
body.addObject(pocket8)
pocket8.Profile = sketch9
pocket8.Type = "ThroughAll"

# Sketch on XZ plane
sketch10 = doc.addObject("Sketcher::SketchObject", "Sketch009")
body.addObject(sketch10)
sketch10.AttachmentSupport = (doc.XZ_Plane, [""])
sketch10.MapMode = "FlatFace"
sketch10.AttachmentOffset = App.Placement(V(0, 0, -0.25 * 25.4), App.Rotation())
sketch10.addGeometry(Part.Circle(V(-54, -48, 0), V(0, 0, 1), 11), False)
sketch10.addGeometry(Part.Circle(V(-204, -48, 0), V(0, 0, 1), 11), False)
sketch10.addConstraint(Sketcher.Constraint("Equal", 0, 1))
sketch10.addConstraint(Sketcher.Constraint("Horizontal", 0, 3, 1, 3))
sketch10.addConstraint(Sketcher.Constraint("Diameter", 0, Q("0.9 in")))
sketch10.addConstraint(Sketcher.Constraint("DistanceX", 1, 3, 0, 3, Q("149.953251 mm")))
sketch10.addConstraint(Sketcher.Constraint("DistanceX", 0, 3, -1, 1, Q("53.826154 mm")))
sketch10.addConstraint(Sketcher.Constraint("DistanceY", 0, 3, -1, 1, Q("47.757614 mm")))
pocket9 = doc.addObject("PartDesign::Pocket", "Pocket008")
body.addObject(pocket9)
pocket9.Profile = sketch10
pocket9.Type = "ThroughAll"
pocket9.Reversed = True

# Sketch on XZ plane
sketch11 = doc.addObject("Sketcher::SketchObject", "Sketch010")
body.addObject(sketch11)
sketch11.AttachmentSupport = (doc.XZ_Plane, [""])
sketch11.MapMode = "FlatFace"
sketch11.addGeometry(Part.Circle(V(-133.7, -39.5, 0), V(0, 0, 1), 1.9), False)
sketch11.addGeometry(Part.Circle(V(-118, -39.5, 0), V(0, 0, 1), 1.9), False)
sketch11.addGeometry(Part.Circle(V(-118, -11.1, 0), V(0, 0, 1), 1.9), False)
sketch11.addGeometry(Part.Circle(V(-133.7, -11.1, 0), V(0, 0, 1), 1.9), False)
sketch11.addConstraint(Sketcher.Constraint("Equal", 0, 1))
sketch11.addConstraint(Sketcher.Constraint("Equal", 1, 2))
sketch11.addConstraint(Sketcher.Constraint("Equal", 2, 3))
sketch11.addConstraint(Sketcher.Constraint("Horizontal", 0, 3, 1, 3))
sketch11.addConstraint(Sketcher.Constraint("Horizontal", 2, 3, 3, 3))
sketch11.addConstraint(Sketcher.Constraint("Vertical", 1, 3, 2, 3))
sketch11.addConstraint(Sketcher.Constraint("Vertical", 0, 3, 3, 3))
sketch11.addConstraint(Sketcher.Constraint("Diameter", 0, Q("0.15 in")))
sketch11.addConstraint(Sketcher.Constraint("DistanceX", 0, 3, 1, 3, Q("0.62 in")))
sketch11.addConstraint(Sketcher.Constraint("DistanceY", 1, 3, 2, 3, Q("1.12 in")))
sketch11.addConstraint(Sketcher.Constraint("DistanceX", 0, 3, -1, 1, Q("133.727 mm")))
sketch11.addConstraint(Sketcher.Constraint("DistanceY", 0, 3, -1, 1, Q("39.501 mm")))
pocket10 = doc.addObject("PartDesign::Pocket", "Pocket009")
body.addObject(pocket10)
pocket10.Profile = sketch11
pocket10.Type = "ThroughAll"

doc.recompute()
